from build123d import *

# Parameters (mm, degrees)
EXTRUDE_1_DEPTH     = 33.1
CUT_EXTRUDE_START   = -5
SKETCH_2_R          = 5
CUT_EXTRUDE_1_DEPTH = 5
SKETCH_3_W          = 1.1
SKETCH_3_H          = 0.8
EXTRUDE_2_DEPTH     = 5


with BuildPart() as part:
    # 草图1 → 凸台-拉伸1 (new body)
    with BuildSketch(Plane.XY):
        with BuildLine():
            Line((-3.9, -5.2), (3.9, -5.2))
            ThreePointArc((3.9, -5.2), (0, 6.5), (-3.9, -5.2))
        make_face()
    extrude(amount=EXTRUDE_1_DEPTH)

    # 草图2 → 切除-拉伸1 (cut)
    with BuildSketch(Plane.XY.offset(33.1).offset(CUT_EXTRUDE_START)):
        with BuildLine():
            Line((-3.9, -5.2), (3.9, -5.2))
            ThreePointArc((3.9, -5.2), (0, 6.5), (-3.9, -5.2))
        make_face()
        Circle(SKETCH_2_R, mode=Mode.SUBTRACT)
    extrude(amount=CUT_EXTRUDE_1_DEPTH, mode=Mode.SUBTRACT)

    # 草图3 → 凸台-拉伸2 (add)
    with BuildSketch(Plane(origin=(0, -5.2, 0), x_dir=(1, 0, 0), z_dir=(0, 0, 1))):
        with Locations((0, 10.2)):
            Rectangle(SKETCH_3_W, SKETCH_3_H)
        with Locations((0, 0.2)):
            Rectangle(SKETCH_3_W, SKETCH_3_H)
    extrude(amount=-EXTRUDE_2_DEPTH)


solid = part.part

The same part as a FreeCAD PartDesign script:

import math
import FreeCAD as App
import Part
import Sketcher
from FreeCAD import Vector

doc = App.newDocument("Part")
body = doc.addObject("PartDesign::Body", "Body")

# Sketch on XY plane
sketch1 = doc.addObject("Sketcher::SketchObject", "Sketch")
body.addObject(sketch1)
sketch1.AttachmentSupport = (doc.XY_Plane, [""])
sketch1.MapMode = "FlatFace"
sketch1.addGeometry([
    Part.LineSegment(Vector(-4, -5, 0), Vector(4, -5, 0)),
    Part.ArcOfCircle(Part.Circle(Vector(0, 0, 0), Vector(0, 0, 1), 6), math.radians(-53), math.radians(233)),
], False)
sketch1.addConstraint([
    Sketcher.Constraint("Coincident", 0, 1, 1, 2),
    Sketcher.Constraint("Coincident", 1, 1, 0, 2),
    Sketcher.Constraint("Horizontal", 0),
    Sketcher.Constraint("Coincident", 1, 3, -1, 1),
    Sketcher.Constraint("Radius", 1, 6.5),
    Sketcher.Constraint("DistanceX", 0, 1, 0, 2, 7.8),
])
pad1 = doc.addObject("PartDesign::Pad", "Pad")
body.addObject(pad1)
pad1.Profile = sketch1
pad1.Length = 33.1

# Sketch on XY plane
sketch2 = doc.addObject("Sketcher::SketchObject", "Sketch001")
body.addObject(sketch2)
sketch2.AttachmentSupport = (doc.XY_Plane, [""])
sketch2.MapMode = "FlatFace"
sketch2.AttachmentOffset = App.Placement(Vector(0, 0, 28.1), App.Rotation())
sketch2.addGeometry([
    Part.LineSegment(Vector(-4, -5, 0), Vector(4, -5, 0)),
    Part.ArcOfCircle(Part.Circle(Vector(0, 0, 0), Vector(0, 0, 1), 6), math.radians(-53), math.radians(233)),
    Part.Circle(Vector(0, 0, 0), Vector(0, 0, 1), 5),
], False)
sketch2.addConstraint([
    Sketcher.Constraint("Coincident", 0, 1, 1, 2),
    Sketcher.Constraint("Coincident", 1, 1, 0, 2),
    Sketcher.Constraint("Horizontal", 0),
    Sketcher.Constraint("Coincident", 1, 3, -1, 1),
    Sketcher.Constraint("Coincident", 2, 3, -1, 1),
    Sketcher.Constraint("Diameter", 2, 10.0),
    Sketcher.Constraint("Radius", 1, 6.5),
    Sketcher.Constraint("DistanceX", 0, 1, 0, 2, 7.8),
])
pocket1 = doc.addObject("PartDesign::Pocket", "Pocket")
body.addObject(pocket1)
pocket1.Profile = sketch2
pocket1.Length = 5
pocket1.Reversed = True

# Sketch on XY plane
sketch3 = doc.addObject("Sketcher::SketchObject", "Sketch002")
body.addObject(sketch3)
sketch3.AttachmentSupport = (doc.XY_Plane, [""])
sketch3.MapMode = "FlatFace"
sketch3.addGeometry([
    Part.LineSegment(Vector(-0.6, 5.4, 0), Vector(-0.6, 4.6, 0)),  # 0
    Part.LineSegment(Vector(-0.6, 4.6, 0), Vector(0.6, 4.6, 0)),  # 1
    Part.LineSegment(Vector(0.6, 4.6, 0), Vector(0.6, 5.4, 0)),  # 2
    Part.LineSegment(Vector(0.6, 5.4, 0), Vector(-0.6, 5.4, 0)),  # 3
    Part.LineSegment(Vector(-0.6, -4.6, 0), Vector(-0.6, -5.4, 0)),  # 4
    Part.LineSegment(Vector(-0.6, -5.4, 0), Vector(0.6, -5.4, 0)),  # 5
    Part.LineSegment(Vector(0.6, -5.4, 0), Vector(0.6, -4.6, 0)),  # 6
    Part.LineSegment(Vector(0.6, -4.6, 0), Vector(-0.6, -4.6, 0)),  # 7
], False)
sketch3.addConstraint([
    Sketcher.Constraint("Coincident", 0, 2, 1, 1),
    Sketcher.Constraint("Coincident", 1, 2, 2, 1),
    Sketcher.Constraint("Coincident", 2, 2, 3, 1),
    Sketcher.Constraint("Coincident", 3, 2, 0, 1),
    Sketcher.Constraint("Coincident", 4, 2, 5, 1),
    Sketcher.Constraint("Coincident", 5, 2, 6, 1),
    Sketcher.Constraint("Coincident", 6, 2, 7, 1),
    Sketcher.Constraint("Coincident", 7, 2, 4, 1),
    Sketcher.Constraint("Vertical", 0),
    Sketcher.Constraint("Horizontal", 1),
    Sketcher.Constraint("Vertical", 2),
    Sketcher.Constraint("Horizontal", 3),
    Sketcher.Constraint("Vertical", 4),
    Sketcher.Constraint("Horizontal", 5),
    Sketcher.Constraint("Vertical", 6),
    Sketcher.Constraint("Horizontal", 7),
    Sketcher.Constraint("Symmetric", 2, 2, 4, 2, -1, 1),
    Sketcher.Constraint("Symmetric", 0, 2, 6, 2, -1, 1),
    Sketcher.Constraint("Vertical", 3, 2, 4, 2),
    Sketcher.Constraint("DistanceX", 1, 1, 1, 2, 1.1),
    Sketcher.Constraint("DistanceY", 0, 2, 0, 1, 0.8),
    Sketcher.Constraint("DistanceY", 4, 2, 0, 2, 10.0),
])
pad2 = doc.addObject("PartDesign::Pad", "Pad001")
body.addObject(pad2)
pad2.Profile = sketch3
pad2.Length = 5
pad2.Reversed = True

doc.recompute()
